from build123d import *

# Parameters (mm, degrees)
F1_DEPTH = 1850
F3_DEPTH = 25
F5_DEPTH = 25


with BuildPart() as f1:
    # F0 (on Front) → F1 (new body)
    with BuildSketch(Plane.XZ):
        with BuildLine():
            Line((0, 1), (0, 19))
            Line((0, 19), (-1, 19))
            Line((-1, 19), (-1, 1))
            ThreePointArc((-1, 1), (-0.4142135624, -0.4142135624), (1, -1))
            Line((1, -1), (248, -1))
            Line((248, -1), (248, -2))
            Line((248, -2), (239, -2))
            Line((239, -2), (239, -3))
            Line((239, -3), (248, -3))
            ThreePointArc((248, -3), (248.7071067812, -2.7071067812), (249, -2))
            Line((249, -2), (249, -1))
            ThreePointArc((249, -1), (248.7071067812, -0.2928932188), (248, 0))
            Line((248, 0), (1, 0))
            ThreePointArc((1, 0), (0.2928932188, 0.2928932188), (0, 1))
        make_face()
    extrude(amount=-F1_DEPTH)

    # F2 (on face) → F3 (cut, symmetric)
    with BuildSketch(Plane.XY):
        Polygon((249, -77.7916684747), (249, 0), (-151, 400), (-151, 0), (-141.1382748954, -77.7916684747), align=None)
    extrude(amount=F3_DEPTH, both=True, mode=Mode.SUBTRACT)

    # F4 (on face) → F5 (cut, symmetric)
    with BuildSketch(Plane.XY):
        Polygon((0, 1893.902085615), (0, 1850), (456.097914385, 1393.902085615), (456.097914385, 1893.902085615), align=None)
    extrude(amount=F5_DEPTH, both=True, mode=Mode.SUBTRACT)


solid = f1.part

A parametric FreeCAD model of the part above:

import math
import FreeCAD as App
import Part
import Sketcher
Q = App.Units.Quantity


def add_polygon(sketch, points):
    """Adds a closed chain of lines whose ends are joined by coincident constraints."""
    first, n = sketch.GeometryCount, len(points)
    for a, b in zip(points, points[1:] + points[:1]):
        sketch.addGeometry(Part.LineSegment(App.Vector(*a, 0), App.Vector(*b, 0)), False)
    for i in range(n):
        sketch.addConstraint(Sketcher.Constraint("Coincident", first + i, 2, first + (i + 1) % n, 1))

doc = App.newDocument("Part")
body = doc.addObject("PartDesign::Body", "Body")

# Sketch on XZ plane
sketch1 = body.newObject("Sketcher::SketchObject", "Sketch")
sketch1.AttachmentSupport = (doc.getObject("XZ_Plane"), [""])
sketch1.MapMode = "FlatFace"
sketch1.addGeometry([
    Part.LineSegment(App.Vector(0, 1, 0), App.Vector(0, 19, 0)),  # 0
    Part.LineSegment(App.Vector(0, 19, 0), App.Vector(-1, 19, 0)),  # 1
    Part.LineSegment(App.Vector(-1, 19, 0), App.Vector(-1, 1, 0)),  # 2
    Part.ArcOfCircle(Part.Circle(App.Vector(1, 1, 0), App.Vector(0, 0, 1), 2), math.radians(180), math.radians(270)),  # 3
    Part.LineSegment(App.Vector(1, -1, 0), App.Vector(248, -1, 0)),  # 4
    Part.LineSegment(App.Vector(248, -1, 0), App.Vector(248, -2, 0)),  # 5
    Part.LineSegment(App.Vector(248, -2, 0), App.Vector(239, -2, 0)),  # 6
    Part.LineSegment(App.Vector(239, -2, 0), App.Vector(239, -3, 0)),  # 7
    Part.LineSegment(App.Vector(239, -3, 0), App.Vector(248, -3, 0)),  # 8
    Part.ArcOfCircle(Part.Circle(App.Vector(248, -2, 0), App.Vector(0, 0, 1), 1), math.radians(-90), math.radians(0)),  # 9
    Part.LineSegment(App.Vector(249, -2, 0), App.Vector(249, -1, 0)),  # 10
    Part.ArcOfCircle(Part.Circle(App.Vector(248, -1, 0), App.Vector(0, 0, 1), 1), math.radians(0), math.radians(90)),  # 11
    Part.LineSegment(App.Vector(248, 0, 0), App.Vector(1, 0, 0)),  # 12
    Part.ArcOfCircle(Part.Circle(App.Vector(1, 1, 0), App.Vector(0, 0, 1), 1), math.radians(180), math.radians(270)),  # 13
], False)
sketch1.addConstraint([
    Sketcher.Constraint("Coincident", 0, 2, 1, 1),
    Sketcher.Constraint("Coincident", 1, 2, 2, 1),
    Sketcher.Constraint("Tangent", 2, 2, 3, 1),
    Sketcher.Constraint("Tangent", 3, 2, 4, 1),
    Sketcher.Constraint("Coincident", 4, 2, 5, 1),
    Sketcher.Constraint("Coincident", 5, 2, 6, 1),
    Sketcher.Constraint("Coincident", 6, 2, 7, 1),
    Sketcher.Constraint("Coincident", 7, 2, 8, 1),
    Sketcher.Constraint("Tangent", 8, 2, 9, 1),
    Sketcher.Constraint("Tangent", 9, 2, 10, 1),
    Sketcher.Constraint("Tangent", 10, 2, 11, 1),
    Sketcher.Constraint("Tangent", 11, 2, 12, 1),
    Sketcher.Constraint("Tangent", 12, 2, 13, 2),
    Sketcher.Constraint("Tangent", 13, 1, 0, 1),
    Sketcher.Constraint("Vertical", 0),
    Sketcher.Constraint("Horizontal", 1),
    Sketcher.Constraint("Vertical", 2),
    Sketcher.Constraint("Horizontal", 4),
    Sketcher.Constraint("Vertical", 5),
    Sketcher.Constraint("Horizontal", 6),
    Sketcher.Constraint("Vertical", 7),
    Sketcher.Constraint("Horizontal", 8),
    Sketcher.Constraint("Vertical", 10),
    Sketcher.Constraint("Horizontal", 12),
    Sketcher.Constraint("Coincident", 13, 3, 3, 3),
    Sketcher.Constraint("Coincident", 4, 2, 11, 3),
    Sketcher.Constraint("Coincident", 5, 2, 9, 3),
    Sketcher.Constraint("Equal", 11, 13),
    Sketcher.Constraint("Symmetric", 2, 2, 3, 2, -1, 1),
    Sketcher.Constraint("Equal", 1, 5),
    Sketcher.Constraint("Radius", 3, 2.0),
    Sketcher.Constraint("DistanceX", 4, 1, 4, 2, 247.0),
    Sketcher.Constraint("DistanceX", 6, 2, 6, 1, 9.0),
    Sketcher.Constraint("DistanceY", 0, 1, 0, 2, 18.0),
])
pad1 = body.newObject("PartDesign::Pad", "Pad")
pad1.Profile = sketch1
pad1.Length = 1850
pad1.Reversed = True

# Sketch on XY plane
sketch2 = body.newObject("Sketcher::SketchObject", "Sketch001")
sketch2.AttachmentSupport = (doc.getObject("XY_Plane"), [""])
sketch2.MapMode = "FlatFace"
add_polygon(sketch2, [(249, -78), (249, 0), (-151, 400), (-151, 0), (-141, -78)])  # lines 0-4
sketch2.addConstraint([
    Sketcher.Constraint("Vertical", 0),
    Sketcher.Constraint("Vertical", 2),
    Sketcher.Constraint("Horizontal", 4),
    Sketcher.Constraint("PointOnObject", 0, 2, -1),
    Sketcher.Constraint("PointOnObject", 2, 2, -1),
    Sketcher.Constraint("DistanceY", 2, 2, 2, 1, 400.0),
    Sketcher.Constraint("Angle", 1, Q("135 deg")),
    Sketcher.Constraint("DistanceX", -1, 1, 0, 2, 249.0),
    Sketcher.Constraint("DistanceY", 0, 1, 0, 2, 77.791668),
    Sketcher.Constraint("DistanceX", 4, 1, 4, 2, 390.138275),
])
pocket1 = body.newObject("PartDesign::Pocket", "Pocket")
pocket1.Profile = sketch2
pocket1.Length = 50
pocket1.Midplane = True

# Sketch on XY plane
sketch3 = body.newObject("Sketcher::SketchObject", "Sketch002")
sketch3.AttachmentSupport = (doc.getObject("XY_Plane"), [""])
sketch3.MapMode = "FlatFace"
add_polygon(sketch3, [(0, 1894), (0, 1850), (456, 1394), (456, 1894)])  # lines 0-3
sketch3.addConstraint([
    Sketcher.Constraint("Vertical", 0),
    Sketcher.Constraint("Vertical", 2),
    Sketcher.Constraint("Horizontal", 3),
    Sketcher.Constraint("PointOnObject", 0, 2, -2),
    Sketcher.Constraint("DistanceY", 2, 1, 2, 2, 500.0),
    Sketcher.Constraint("Angle", 1, Q("-45 deg")),
    Sketcher.Constraint("DistanceY", -1, 1, 0, 2, 1850.0),
    Sketcher.Constraint("DistanceX", 3, 2, 3, 1, 456.097914),
])
pocket2 = body.newObject("PartDesign::Pocket", "Pocket001")
pocket2.Profile = sketch3
pocket2.Length = 50
pocket2.Midplane = True

doc.recompute()
